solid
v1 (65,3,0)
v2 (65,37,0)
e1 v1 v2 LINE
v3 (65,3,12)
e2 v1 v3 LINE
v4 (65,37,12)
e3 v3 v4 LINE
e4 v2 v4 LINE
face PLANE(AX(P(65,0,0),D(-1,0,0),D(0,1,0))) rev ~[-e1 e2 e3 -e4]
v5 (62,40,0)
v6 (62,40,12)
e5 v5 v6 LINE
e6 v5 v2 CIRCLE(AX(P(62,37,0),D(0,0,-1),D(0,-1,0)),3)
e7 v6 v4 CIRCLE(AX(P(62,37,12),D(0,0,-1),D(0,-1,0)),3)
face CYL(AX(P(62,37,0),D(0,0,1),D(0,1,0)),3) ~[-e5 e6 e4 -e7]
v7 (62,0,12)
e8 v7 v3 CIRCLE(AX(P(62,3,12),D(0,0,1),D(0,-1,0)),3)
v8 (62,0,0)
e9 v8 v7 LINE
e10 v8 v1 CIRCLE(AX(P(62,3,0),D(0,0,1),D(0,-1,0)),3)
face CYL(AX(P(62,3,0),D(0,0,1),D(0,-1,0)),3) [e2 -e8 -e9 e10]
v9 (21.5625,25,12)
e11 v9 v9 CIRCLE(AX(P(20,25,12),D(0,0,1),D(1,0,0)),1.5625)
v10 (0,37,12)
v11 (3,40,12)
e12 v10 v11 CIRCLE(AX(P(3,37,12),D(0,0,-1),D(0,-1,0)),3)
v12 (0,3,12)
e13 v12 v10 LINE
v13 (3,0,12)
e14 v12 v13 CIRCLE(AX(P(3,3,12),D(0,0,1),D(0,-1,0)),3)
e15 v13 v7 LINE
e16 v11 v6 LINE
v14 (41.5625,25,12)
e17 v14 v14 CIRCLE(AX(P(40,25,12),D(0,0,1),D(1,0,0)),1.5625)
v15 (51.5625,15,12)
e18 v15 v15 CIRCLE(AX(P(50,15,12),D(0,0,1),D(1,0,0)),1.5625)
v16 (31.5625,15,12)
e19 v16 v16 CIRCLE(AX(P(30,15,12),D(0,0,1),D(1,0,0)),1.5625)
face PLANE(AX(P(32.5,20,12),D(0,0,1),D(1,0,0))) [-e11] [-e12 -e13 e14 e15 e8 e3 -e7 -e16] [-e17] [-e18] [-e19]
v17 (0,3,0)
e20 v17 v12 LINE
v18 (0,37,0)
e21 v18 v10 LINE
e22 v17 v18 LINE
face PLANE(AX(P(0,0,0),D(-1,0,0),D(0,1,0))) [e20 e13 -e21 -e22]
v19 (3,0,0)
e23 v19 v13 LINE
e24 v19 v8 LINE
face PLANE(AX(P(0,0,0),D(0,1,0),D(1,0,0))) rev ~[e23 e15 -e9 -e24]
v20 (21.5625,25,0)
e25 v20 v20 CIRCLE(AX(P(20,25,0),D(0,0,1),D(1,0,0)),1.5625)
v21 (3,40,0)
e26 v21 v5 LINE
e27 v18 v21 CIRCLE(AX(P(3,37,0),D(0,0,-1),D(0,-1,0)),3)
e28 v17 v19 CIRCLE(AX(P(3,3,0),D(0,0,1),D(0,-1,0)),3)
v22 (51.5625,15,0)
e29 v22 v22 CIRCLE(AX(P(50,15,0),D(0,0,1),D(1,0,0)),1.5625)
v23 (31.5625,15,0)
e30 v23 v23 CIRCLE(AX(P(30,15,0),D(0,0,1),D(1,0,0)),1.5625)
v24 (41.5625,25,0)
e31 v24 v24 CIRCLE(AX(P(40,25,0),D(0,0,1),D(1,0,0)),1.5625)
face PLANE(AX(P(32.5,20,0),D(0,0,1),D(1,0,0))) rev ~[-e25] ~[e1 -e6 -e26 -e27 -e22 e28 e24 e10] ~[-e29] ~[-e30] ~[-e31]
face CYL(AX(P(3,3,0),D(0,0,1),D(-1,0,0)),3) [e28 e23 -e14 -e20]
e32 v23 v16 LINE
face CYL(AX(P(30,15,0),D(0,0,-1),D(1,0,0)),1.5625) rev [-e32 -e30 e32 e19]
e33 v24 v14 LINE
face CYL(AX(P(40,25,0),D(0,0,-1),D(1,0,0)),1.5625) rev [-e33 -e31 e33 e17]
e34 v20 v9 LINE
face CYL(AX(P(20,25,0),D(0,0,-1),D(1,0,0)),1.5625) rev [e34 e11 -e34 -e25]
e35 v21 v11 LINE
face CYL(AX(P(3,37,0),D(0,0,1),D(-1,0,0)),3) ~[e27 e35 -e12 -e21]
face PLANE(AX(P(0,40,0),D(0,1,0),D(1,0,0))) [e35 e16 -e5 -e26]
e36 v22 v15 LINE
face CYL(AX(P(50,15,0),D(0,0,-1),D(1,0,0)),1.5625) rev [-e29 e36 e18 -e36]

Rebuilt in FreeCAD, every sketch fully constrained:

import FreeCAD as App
import Part
import Sketcher


def edges_at(feature, points):
    """Names of the edges that pass closest to the given points."""
    edges = feature.Shape.Edges
    near = lambda p: min(range(len(edges)), key=lambda i: edges[i].distToShape(Part.Vertex(*p))[0])
    return sorted({f"Edge{near(p) + 1}" for p in points})


def add_polygon(sketch, points):
    """Adds a closed chain of lines whose ends are joined by coincident constraints."""
    first, n = sketch.GeometryCount, len(points)
    for a, b in zip(points, points[1:] + points[:1]):
        sketch.addGeometry(Part.LineSegment(App.Vector(*a, 0), App.Vector(*b, 0)), False)
    for i in range(n):
        sketch.addConstraint(Sketcher.Constraint("Coincident", first + i, 2, first + (i + 1) % n, 1))

doc = App.newDocument("Part")
body = doc.addObject("PartDesign::Body", "Body")

sketch1 = body.newObject("Sketcher::SketchObject", "Sketch")
sketch1.AttachmentSupport = (doc.getObject("XY_Plane"), [""])
sketch1.MapMode = "FlatFace"
add_polygon(sketch1, [(0, 40), (0, 0), (65, 0), (65, 40)])
sketch1.addGeometry(Part.Circle(App.Vector(30, 15, 0), App.Vector(0, 0, 1), 1.6), False)
sketch1.addGeometry(Part.Circle(App.Vector(50, 15, 0), App.Vector(0, 0, 1), 1.6), False)
sketch1.addGeometry(Part.Circle(App.Vector(20, 25, 0), App.Vector(0, 0, 1), 1.6), False)
sketch1.addGeometry(Part.Circle(App.Vector(40, 25, 0), App.Vector(0, 0, 1), 1.6), False)
sketch1.addConstraint([
    Sketcher.Constraint("Vertical", 0),
    Sketcher.Constraint("Horizontal", 1),
    Sketcher.Constraint("Vertical", 2),
    Sketcher.Constraint("Horizontal", 3),
    Sketcher.Constraint("Coincident", 0, 2, -1, 1),
    Sketcher.Constraint("Equal", 4, 5),
    Sketcher.Constraint("Equal", 5, 6),
    Sketcher.Constraint("Equal", 6, 7),
    Sketcher.Constraint("Horizontal", 4, 3, 5, 3),
    Sketcher.Constraint("Horizontal", 6, 3, 7, 3),
    Sketcher.Constraint("DistanceX", 1, 1, 1, 2, 65.0),
    Sketcher.Constraint("DistanceY", 0, 2, 0, 1, 40.0),
    Sketcher.Constraint("Diameter", 4, 3.125),
    Sketcher.Constraint("DistanceX", -1, 1, 4, 3, 30.0),
    Sketcher.Constraint("DistanceY", -1, 1, 4, 3, 15.0),
    Sketcher.Constraint("DistanceX", -1, 1, 5, 3, 50.0),
    Sketcher.Constraint("DistanceX", -1, 1, 6, 3, 20.0),
    Sketcher.Constraint("DistanceY", -1, 1, 6, 3, 25.0),
    Sketcher.Constraint("DistanceX", -1, 1, 7, 3, 40.0),
])
pad1 = body.newObject("PartDesign::Pad", "Pad")
pad1.Profile = sketch1
pad1.Length = 12
doc.recompute()

fillet = body.newObject("PartDesign::Fillet", "Fillet")
fillet.Base = (pad1, edges_at(pad1, [
    (65, 40, 6),
    (0, 40, 6),
    (0, 0, 6),
    (65, 0, 6),
]))
fillet.Radius = 3

doc.recompute()
